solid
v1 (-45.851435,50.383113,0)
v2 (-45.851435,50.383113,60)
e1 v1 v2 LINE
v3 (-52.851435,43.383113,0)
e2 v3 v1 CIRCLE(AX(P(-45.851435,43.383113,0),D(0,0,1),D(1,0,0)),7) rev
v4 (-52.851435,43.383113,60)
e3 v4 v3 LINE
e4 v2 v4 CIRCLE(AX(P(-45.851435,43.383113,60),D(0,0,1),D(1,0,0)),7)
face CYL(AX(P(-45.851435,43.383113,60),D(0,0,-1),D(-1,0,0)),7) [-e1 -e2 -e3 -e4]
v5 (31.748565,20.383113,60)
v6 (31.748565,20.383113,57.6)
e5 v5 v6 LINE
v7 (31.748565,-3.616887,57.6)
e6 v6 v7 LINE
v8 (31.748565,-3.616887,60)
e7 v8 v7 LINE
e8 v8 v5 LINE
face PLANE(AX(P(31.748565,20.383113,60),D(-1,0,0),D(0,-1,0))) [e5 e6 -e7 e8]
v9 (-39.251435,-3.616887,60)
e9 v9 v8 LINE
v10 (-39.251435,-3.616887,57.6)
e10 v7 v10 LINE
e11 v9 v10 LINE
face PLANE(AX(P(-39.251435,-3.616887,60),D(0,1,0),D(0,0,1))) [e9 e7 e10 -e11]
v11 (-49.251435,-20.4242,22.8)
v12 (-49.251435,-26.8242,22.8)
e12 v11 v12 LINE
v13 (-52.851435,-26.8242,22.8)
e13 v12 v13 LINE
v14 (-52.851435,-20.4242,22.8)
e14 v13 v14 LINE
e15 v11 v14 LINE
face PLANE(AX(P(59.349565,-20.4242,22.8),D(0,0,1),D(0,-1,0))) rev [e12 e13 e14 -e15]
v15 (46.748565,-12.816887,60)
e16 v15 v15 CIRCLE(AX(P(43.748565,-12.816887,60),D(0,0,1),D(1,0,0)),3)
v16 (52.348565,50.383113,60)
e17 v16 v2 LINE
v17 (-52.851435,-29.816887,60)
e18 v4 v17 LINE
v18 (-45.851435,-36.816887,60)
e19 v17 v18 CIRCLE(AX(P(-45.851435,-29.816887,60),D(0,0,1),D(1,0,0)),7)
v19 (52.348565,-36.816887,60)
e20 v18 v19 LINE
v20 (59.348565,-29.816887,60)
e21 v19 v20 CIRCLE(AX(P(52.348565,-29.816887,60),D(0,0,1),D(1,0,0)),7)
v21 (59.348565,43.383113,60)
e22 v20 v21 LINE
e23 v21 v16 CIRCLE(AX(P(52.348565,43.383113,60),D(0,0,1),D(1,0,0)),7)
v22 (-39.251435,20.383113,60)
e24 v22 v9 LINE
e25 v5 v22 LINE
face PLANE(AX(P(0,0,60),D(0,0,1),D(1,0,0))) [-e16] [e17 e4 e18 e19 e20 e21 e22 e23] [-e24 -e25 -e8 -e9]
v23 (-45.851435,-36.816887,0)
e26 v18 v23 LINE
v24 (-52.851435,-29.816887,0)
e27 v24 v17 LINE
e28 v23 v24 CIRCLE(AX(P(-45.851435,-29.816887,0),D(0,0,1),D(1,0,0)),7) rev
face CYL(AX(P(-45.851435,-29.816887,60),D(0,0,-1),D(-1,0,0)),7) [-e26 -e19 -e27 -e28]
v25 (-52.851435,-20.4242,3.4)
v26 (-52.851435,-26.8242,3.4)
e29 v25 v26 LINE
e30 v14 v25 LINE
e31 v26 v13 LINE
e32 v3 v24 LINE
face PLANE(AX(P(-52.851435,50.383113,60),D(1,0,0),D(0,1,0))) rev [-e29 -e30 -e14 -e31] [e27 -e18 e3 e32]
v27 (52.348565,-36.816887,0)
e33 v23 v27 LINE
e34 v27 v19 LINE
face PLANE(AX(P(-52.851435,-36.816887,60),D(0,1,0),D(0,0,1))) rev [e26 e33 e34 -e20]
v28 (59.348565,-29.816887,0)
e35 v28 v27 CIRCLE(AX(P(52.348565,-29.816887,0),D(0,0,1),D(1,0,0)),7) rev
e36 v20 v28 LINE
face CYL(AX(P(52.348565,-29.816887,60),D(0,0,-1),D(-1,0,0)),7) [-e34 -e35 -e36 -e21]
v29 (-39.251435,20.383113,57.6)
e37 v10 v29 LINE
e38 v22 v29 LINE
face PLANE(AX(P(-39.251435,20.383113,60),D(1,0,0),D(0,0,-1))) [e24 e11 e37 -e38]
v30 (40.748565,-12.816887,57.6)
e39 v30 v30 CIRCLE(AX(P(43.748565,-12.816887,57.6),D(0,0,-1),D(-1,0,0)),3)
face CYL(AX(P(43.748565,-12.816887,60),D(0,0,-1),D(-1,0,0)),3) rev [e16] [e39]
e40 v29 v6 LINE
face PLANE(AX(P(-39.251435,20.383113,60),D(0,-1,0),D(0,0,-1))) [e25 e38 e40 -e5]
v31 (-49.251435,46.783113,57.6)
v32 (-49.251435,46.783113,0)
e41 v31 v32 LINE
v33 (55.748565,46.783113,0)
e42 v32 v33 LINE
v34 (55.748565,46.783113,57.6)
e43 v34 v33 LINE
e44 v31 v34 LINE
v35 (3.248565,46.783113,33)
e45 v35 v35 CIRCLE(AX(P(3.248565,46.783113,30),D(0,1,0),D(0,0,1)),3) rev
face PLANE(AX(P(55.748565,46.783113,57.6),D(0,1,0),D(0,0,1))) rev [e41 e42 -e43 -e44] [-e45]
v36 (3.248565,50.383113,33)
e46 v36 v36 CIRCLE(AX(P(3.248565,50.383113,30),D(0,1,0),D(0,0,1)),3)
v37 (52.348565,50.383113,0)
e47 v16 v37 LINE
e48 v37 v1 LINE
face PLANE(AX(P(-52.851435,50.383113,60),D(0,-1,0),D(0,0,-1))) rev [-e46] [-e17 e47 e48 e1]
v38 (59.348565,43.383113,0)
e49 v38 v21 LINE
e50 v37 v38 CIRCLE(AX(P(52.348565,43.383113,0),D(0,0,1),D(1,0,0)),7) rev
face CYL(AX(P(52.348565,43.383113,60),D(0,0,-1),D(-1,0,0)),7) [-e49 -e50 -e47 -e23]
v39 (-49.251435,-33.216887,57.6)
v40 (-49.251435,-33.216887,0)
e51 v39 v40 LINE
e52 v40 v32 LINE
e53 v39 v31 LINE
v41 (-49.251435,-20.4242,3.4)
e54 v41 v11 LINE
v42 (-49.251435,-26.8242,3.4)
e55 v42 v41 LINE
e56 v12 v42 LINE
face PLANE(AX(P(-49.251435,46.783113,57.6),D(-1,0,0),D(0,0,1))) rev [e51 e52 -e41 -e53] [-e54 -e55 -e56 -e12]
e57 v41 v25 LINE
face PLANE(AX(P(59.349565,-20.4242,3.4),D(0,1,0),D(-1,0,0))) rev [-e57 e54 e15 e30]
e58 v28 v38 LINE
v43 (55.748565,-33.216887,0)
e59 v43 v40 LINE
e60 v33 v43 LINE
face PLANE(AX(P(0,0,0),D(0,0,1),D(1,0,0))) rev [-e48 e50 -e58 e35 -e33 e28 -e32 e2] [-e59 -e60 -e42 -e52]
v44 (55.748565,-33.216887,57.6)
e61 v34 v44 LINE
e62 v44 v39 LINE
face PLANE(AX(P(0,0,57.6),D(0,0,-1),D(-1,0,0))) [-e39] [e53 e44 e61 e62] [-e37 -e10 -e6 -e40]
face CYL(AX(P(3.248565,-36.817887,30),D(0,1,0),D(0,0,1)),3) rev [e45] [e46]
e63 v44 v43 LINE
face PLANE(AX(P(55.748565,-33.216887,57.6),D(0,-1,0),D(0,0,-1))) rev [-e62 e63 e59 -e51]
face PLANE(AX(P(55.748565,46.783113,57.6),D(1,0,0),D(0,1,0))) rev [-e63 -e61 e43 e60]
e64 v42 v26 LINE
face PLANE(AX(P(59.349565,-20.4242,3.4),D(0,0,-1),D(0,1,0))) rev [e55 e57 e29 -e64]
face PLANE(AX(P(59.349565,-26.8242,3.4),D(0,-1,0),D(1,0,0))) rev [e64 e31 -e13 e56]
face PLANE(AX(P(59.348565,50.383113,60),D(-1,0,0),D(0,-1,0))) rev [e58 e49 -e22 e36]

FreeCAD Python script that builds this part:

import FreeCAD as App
import Part
import Sketcher
Q = App.Units.Quantity


def edges_at(feature, points):
    """Names of the edges that pass closest to the given points."""
    edges = feature.Shape.Edges
    near = lambda p: min(range(len(edges)), key=lambda i: edges[i].distToShape(Part.Vertex(*p))[0])
    return sorted({f"Edge{near(p) + 1}" for p in points})

doc = App.newDocument("Part")
body = doc.addObject("PartDesign::Body", "Body")

# Sketch on XY plane
sketch1 = body.newObject("Sketcher::SketchObject", "Sketch")
sketch1.AttachmentSupport = (doc.getObject("XY_Plane"), [""])
sketch1.MapMode = "FlatFace"
sketch1.addGeometry(Part.LineSegment(App.Vector(-52.9, 50.4, 0), App.Vector(-52.9, -36.8, 0)), False)
sketch1.addGeometry(Part.LineSegment(App.Vector(-52.9, -36.8, 0), App.Vector(59.3, -36.8, 0)), False)
sketch1.addGeometry(Part.LineSegment(App.Vector(59.3, -36.8, 0), App.Vector(59.3, 50.4, 0)), False)
sketch1.addGeometry(Part.LineSegment(App.Vector(59.3, 50.4, 0), App.Vector(-52.9, 50.4, 0)), False)
sketch1.addGeometry(Part.Circle(App.Vector(43.7, -12.8, 0), App.Vector(0, 0, 1), 3), False)
sketch1.addGeometry(Part.LineSegment(App.Vector(31.7, -3.6, 0), App.Vector(-39.3, -3.6, 0)), False)
sketch1.addGeometry(Part.LineSegment(App.Vector(-39.3, -3.6, 0), App.Vector(-39.3, 20.4, 0)), False)
sketch1.addGeometry(Part.LineSegment(App.Vector(-39.3, 20.4, 0), App.Vector(31.7, 20.4, 0)), False)
sketch1.addGeometry(Part.LineSegment(App.Vector(31.7, 20.4, 0), App.Vector(31.7, -3.6, 0)), False)
sketch1.addConstraint(Sketcher.Constraint("Coincident", 0, 2, 1, 1))
sketch1.addConstraint(Sketcher.Constraint("Coincident", 1, 2, 2, 1))
sketch1.addConstraint(Sketcher.Constraint("Coincident", 2, 2, 3, 1))
sketch1.addConstraint(Sketcher.Constraint("Coincident", 3, 2, 0, 1))
sketch1.addConstraint(Sketcher.Constraint("Coincident", 5, 2, 6, 1))
sketch1.addConstraint(Sketcher.Constraint("Coincident", 6, 2, 7, 1))
sketch1.addConstraint(Sketcher.Constraint("Coincident", 7, 2, 8, 1))
sketch1.addConstraint(Sketcher.Constraint("Coincident", 8, 2, 5, 1))
sketch1.addConstraint(Sketcher.Constraint("Vertical", 0))
sketch1.addConstraint(Sketcher.Constraint("Horizontal", 1))
sketch1.addConstraint(Sketcher.Constraint("Vertical", 2))
sketch1.addConstraint(Sketcher.Constraint("Horizontal", 3))
sketch1.addConstraint(Sketcher.Constraint("Horizontal", 5))
sketch1.addConstraint(Sketcher.Constraint("Vertical", 6))
sketch1.addConstraint(Sketcher.Constraint("Horizontal", 7))
sketch1.addConstraint(Sketcher.Constraint("Vertical", 8))
sketch1.addConstraint(Sketcher.Constraint("Diameter", 4, Q("6 mm")))
sketch1.addConstraint(Sketcher.Constraint("DistanceX", 5, 2, 5, 1, Q("71 mm")))
sketch1.addConstraint(Sketcher.Constraint("DistanceY", 6, 1, 6, 2, Q("24 mm")))
sketch1.addConstraint(Sketcher.Constraint("DistanceX", 1, 1, 1, 2, Q("112.2 mm")))
sketch1.addConstraint(Sketcher.Constraint("DistanceY", 0, 2, 0, 1, Q("87.2 mm")))
sketch1.addConstraint(Sketcher.Constraint("DistanceY", 0, 2, 4, 3, Q("24 mm")))
sketch1.addConstraint(Sketcher.Constraint("DistanceY", 5, 2, 3, 2, Q("54 mm")))
sketch1.addConstraint(Sketcher.Constraint("DistanceX", 5, 2, 4, 3, Q("83 mm")))
sketch1.addConstraint(Sketcher.Constraint("DistanceX", 0, 2, 4, 3, Q("96.6 mm")))
sketch1.addConstraint(Sketcher.Constraint("DistanceX", -1, 1, 4, 3, Q("43.748565 mm")))
sketch1.addConstraint(Sketcher.Constraint("DistanceY", 4, 3, -1, 1, Q("12.816887 mm")))
pad1 = body.newObject("PartDesign::Pad", "Pad")
pad1.Profile = sketch1
pad1.Length = 60

# Sketch on XY plane
sketch2 = body.newObject("Sketcher::SketchObject", "Sketch001")
sketch2.AttachmentSupport = (doc.getObject("XY_Plane"), [""])
sketch2.MapMode = "FlatFace"
sketch2.addGeometry(Part.LineSegment(App.Vector(56, 47, 0), App.Vector(56, -33, 0)), False)
sketch2.addGeometry(Part.LineSegment(App.Vector(56, -33, 0), App.Vector(-49, -33, 0)), False)
sketch2.addGeometry(Part.LineSegment(App.Vector(-49, -33, 0), App.Vector(-49, 47, 0)), False)
sketch2.addGeometry(Part.LineSegment(App.Vector(-49, 47, 0), App.Vector(56, 47, 0)), False)
sketch2.addConstraint(Sketcher.Constraint("Coincident", 0, 2, 1, 1))
sketch2.addConstraint(Sketcher.Constraint("Coincident", 1, 2, 2, 1))
sketch2.addConstraint(Sketcher.Constraint("Coincident", 2, 2, 3, 1))
sketch2.addConstraint(Sketcher.Constraint("Coincident", 3, 2, 0, 1))
sketch2.addConstraint(Sketcher.Constraint("Vertical", 0))
sketch2.addConstraint(Sketcher.Constraint("Horizontal", 1))
sketch2.addConstraint(Sketcher.Constraint("Vertical", 2))
sketch2.addConstraint(Sketcher.Constraint("Horizontal", 3))
sketch2.addConstraint(Sketcher.Constraint("DistanceX", 1, 2, 1, 1, Q("105 mm")))
sketch2.addConstraint(Sketcher.Constraint("DistanceY", 0, 2, 0, 1, Q("80 mm")))
sketch2.addConstraint(Sketcher.Constraint("DistanceX", -1, 1, 0, 2, Q("55.748565 mm")))
sketch2.addConstraint(Sketcher.Constraint("DistanceY", 0, 2, -1, 1, Q("33.216887 mm")))
pocket1 = body.newObject("PartDesign::Pocket", "Pocket")
pocket1.Profile = sketch2
pocket1.Length = 57.6
pocket1.Reversed = True
doc.recompute()

fillet = body.newObject("PartDesign::Fillet", "Fillet")
fillet.Base = (pocket1, edges_at(pocket1, [
    (-52.851, 50.383, 30),
    (59.349, 50.383, 30),
    (59.349, -36.817, 30),
    (-52.851, -36.817, 30),
]))
fillet.Radius = 7

# Sketch on XZ plane
sketch3 = body.newObject("Sketcher::SketchObject", "Sketch002")
sketch3.AttachmentSupport = (doc.getObject("XZ_Plane"), [""])
sketch3.MapMode = "FlatFace"
sketch3.AttachmentOffset = App.Placement(App.Vector(0, 0, -50.383113), App.Rotation())
sketch3.addGeometry(Part.Circle(App.Vector(3.2, 30, 0), App.Vector(0, 0, 1), 3), False)
sketch3.addConstraint(Sketcher.Constraint("Diameter", 0, Q("6 mm")))
sketch3.addConstraint(Sketcher.Constraint("DistanceY", -1, 1, 0, 3, Q("30 mm")))
sketch3.addConstraint(Sketcher.Constraint("DistanceX", -1, 1, 0, 3, Q("3.248565 mm")))
pocket2 = body.newObject("PartDesign::Pocket", "Pocket001")
pocket2.Profile = sketch3
pocket2.Type = "UpToFirst"
pocket2.Reversed = True

# Sketch on YZ plane
sketch4 = body.newObject("Sketcher::SketchObject", "Sketch003")
sketch4.AttachmentSupport = (doc.getObject("YZ_Plane"), [""])
sketch4.MapMode = "FlatFace"
sketch4.AttachmentOffset = App.Placement(App.Vector(0, 0, -52.851435), App.Rotation())
sketch4.addGeometry(Part.LineSegment(App.Vector(-20, 3, 0), App.Vector(-27, 3, 0)), False)
sketch4.addGeometry(Part.LineSegment(App.Vector(-27, 3, 0), App.Vector(-27, 23, 0)), False)
sketch4.addGeometry(Part.LineSegment(App.Vector(-27, 23, 0), App.Vector(-20, 23, 0)), False)
sketch4.addGeometry(Part.LineSegment(App.Vector(-20, 23, 0), App.Vector(-20, 3, 0)), False)
sketch4.addConstraint(Sketcher.Constraint("Coincident", 0, 2, 1, 1))
sketch4.addConstraint(Sketcher.Constraint("Coincident", 1, 2, 2, 1))
sketch4.addConstraint(Sketcher.Constraint("Coincident", 2, 2, 3, 1))
sketch4.addConstraint(Sketcher.Constraint("Coincident", 3, 2, 0, 1))
sketch4.addConstraint(Sketcher.Constraint("Horizontal", 0))
sketch4.addConstraint(Sketcher.Constraint("Vertical", 1))
sketch4.addConstraint(Sketcher.Constraint("Horizontal", 2))
sketch4.addConstraint(Sketcher.Constraint("Vertical", 3))
sketch4.addConstraint(Sketcher.Constraint("DistanceX", 0, 2, 0, 1, Q("6.4 mm")))
sketch4.addConstraint(Sketcher.Constraint("DistanceY", 1, 1, 1, 2, Q("19.4 mm")))
sketch4.addConstraint(Sketcher.Constraint("DistanceY", -1, 1, 0, 2, Q("3.4 mm")))
sketch4.addConstraint(Sketcher.Constraint("DistanceX", 0, 2, -1, 1, Q("26.8242 mm")))
pocket3 = body.newObject("PartDesign::Pocket", "Pocket002")
pocket3.Profile = sketch4
pocket3.Type = "UpToFirst"
pocket3.Reversed = True

doc.recompute()
